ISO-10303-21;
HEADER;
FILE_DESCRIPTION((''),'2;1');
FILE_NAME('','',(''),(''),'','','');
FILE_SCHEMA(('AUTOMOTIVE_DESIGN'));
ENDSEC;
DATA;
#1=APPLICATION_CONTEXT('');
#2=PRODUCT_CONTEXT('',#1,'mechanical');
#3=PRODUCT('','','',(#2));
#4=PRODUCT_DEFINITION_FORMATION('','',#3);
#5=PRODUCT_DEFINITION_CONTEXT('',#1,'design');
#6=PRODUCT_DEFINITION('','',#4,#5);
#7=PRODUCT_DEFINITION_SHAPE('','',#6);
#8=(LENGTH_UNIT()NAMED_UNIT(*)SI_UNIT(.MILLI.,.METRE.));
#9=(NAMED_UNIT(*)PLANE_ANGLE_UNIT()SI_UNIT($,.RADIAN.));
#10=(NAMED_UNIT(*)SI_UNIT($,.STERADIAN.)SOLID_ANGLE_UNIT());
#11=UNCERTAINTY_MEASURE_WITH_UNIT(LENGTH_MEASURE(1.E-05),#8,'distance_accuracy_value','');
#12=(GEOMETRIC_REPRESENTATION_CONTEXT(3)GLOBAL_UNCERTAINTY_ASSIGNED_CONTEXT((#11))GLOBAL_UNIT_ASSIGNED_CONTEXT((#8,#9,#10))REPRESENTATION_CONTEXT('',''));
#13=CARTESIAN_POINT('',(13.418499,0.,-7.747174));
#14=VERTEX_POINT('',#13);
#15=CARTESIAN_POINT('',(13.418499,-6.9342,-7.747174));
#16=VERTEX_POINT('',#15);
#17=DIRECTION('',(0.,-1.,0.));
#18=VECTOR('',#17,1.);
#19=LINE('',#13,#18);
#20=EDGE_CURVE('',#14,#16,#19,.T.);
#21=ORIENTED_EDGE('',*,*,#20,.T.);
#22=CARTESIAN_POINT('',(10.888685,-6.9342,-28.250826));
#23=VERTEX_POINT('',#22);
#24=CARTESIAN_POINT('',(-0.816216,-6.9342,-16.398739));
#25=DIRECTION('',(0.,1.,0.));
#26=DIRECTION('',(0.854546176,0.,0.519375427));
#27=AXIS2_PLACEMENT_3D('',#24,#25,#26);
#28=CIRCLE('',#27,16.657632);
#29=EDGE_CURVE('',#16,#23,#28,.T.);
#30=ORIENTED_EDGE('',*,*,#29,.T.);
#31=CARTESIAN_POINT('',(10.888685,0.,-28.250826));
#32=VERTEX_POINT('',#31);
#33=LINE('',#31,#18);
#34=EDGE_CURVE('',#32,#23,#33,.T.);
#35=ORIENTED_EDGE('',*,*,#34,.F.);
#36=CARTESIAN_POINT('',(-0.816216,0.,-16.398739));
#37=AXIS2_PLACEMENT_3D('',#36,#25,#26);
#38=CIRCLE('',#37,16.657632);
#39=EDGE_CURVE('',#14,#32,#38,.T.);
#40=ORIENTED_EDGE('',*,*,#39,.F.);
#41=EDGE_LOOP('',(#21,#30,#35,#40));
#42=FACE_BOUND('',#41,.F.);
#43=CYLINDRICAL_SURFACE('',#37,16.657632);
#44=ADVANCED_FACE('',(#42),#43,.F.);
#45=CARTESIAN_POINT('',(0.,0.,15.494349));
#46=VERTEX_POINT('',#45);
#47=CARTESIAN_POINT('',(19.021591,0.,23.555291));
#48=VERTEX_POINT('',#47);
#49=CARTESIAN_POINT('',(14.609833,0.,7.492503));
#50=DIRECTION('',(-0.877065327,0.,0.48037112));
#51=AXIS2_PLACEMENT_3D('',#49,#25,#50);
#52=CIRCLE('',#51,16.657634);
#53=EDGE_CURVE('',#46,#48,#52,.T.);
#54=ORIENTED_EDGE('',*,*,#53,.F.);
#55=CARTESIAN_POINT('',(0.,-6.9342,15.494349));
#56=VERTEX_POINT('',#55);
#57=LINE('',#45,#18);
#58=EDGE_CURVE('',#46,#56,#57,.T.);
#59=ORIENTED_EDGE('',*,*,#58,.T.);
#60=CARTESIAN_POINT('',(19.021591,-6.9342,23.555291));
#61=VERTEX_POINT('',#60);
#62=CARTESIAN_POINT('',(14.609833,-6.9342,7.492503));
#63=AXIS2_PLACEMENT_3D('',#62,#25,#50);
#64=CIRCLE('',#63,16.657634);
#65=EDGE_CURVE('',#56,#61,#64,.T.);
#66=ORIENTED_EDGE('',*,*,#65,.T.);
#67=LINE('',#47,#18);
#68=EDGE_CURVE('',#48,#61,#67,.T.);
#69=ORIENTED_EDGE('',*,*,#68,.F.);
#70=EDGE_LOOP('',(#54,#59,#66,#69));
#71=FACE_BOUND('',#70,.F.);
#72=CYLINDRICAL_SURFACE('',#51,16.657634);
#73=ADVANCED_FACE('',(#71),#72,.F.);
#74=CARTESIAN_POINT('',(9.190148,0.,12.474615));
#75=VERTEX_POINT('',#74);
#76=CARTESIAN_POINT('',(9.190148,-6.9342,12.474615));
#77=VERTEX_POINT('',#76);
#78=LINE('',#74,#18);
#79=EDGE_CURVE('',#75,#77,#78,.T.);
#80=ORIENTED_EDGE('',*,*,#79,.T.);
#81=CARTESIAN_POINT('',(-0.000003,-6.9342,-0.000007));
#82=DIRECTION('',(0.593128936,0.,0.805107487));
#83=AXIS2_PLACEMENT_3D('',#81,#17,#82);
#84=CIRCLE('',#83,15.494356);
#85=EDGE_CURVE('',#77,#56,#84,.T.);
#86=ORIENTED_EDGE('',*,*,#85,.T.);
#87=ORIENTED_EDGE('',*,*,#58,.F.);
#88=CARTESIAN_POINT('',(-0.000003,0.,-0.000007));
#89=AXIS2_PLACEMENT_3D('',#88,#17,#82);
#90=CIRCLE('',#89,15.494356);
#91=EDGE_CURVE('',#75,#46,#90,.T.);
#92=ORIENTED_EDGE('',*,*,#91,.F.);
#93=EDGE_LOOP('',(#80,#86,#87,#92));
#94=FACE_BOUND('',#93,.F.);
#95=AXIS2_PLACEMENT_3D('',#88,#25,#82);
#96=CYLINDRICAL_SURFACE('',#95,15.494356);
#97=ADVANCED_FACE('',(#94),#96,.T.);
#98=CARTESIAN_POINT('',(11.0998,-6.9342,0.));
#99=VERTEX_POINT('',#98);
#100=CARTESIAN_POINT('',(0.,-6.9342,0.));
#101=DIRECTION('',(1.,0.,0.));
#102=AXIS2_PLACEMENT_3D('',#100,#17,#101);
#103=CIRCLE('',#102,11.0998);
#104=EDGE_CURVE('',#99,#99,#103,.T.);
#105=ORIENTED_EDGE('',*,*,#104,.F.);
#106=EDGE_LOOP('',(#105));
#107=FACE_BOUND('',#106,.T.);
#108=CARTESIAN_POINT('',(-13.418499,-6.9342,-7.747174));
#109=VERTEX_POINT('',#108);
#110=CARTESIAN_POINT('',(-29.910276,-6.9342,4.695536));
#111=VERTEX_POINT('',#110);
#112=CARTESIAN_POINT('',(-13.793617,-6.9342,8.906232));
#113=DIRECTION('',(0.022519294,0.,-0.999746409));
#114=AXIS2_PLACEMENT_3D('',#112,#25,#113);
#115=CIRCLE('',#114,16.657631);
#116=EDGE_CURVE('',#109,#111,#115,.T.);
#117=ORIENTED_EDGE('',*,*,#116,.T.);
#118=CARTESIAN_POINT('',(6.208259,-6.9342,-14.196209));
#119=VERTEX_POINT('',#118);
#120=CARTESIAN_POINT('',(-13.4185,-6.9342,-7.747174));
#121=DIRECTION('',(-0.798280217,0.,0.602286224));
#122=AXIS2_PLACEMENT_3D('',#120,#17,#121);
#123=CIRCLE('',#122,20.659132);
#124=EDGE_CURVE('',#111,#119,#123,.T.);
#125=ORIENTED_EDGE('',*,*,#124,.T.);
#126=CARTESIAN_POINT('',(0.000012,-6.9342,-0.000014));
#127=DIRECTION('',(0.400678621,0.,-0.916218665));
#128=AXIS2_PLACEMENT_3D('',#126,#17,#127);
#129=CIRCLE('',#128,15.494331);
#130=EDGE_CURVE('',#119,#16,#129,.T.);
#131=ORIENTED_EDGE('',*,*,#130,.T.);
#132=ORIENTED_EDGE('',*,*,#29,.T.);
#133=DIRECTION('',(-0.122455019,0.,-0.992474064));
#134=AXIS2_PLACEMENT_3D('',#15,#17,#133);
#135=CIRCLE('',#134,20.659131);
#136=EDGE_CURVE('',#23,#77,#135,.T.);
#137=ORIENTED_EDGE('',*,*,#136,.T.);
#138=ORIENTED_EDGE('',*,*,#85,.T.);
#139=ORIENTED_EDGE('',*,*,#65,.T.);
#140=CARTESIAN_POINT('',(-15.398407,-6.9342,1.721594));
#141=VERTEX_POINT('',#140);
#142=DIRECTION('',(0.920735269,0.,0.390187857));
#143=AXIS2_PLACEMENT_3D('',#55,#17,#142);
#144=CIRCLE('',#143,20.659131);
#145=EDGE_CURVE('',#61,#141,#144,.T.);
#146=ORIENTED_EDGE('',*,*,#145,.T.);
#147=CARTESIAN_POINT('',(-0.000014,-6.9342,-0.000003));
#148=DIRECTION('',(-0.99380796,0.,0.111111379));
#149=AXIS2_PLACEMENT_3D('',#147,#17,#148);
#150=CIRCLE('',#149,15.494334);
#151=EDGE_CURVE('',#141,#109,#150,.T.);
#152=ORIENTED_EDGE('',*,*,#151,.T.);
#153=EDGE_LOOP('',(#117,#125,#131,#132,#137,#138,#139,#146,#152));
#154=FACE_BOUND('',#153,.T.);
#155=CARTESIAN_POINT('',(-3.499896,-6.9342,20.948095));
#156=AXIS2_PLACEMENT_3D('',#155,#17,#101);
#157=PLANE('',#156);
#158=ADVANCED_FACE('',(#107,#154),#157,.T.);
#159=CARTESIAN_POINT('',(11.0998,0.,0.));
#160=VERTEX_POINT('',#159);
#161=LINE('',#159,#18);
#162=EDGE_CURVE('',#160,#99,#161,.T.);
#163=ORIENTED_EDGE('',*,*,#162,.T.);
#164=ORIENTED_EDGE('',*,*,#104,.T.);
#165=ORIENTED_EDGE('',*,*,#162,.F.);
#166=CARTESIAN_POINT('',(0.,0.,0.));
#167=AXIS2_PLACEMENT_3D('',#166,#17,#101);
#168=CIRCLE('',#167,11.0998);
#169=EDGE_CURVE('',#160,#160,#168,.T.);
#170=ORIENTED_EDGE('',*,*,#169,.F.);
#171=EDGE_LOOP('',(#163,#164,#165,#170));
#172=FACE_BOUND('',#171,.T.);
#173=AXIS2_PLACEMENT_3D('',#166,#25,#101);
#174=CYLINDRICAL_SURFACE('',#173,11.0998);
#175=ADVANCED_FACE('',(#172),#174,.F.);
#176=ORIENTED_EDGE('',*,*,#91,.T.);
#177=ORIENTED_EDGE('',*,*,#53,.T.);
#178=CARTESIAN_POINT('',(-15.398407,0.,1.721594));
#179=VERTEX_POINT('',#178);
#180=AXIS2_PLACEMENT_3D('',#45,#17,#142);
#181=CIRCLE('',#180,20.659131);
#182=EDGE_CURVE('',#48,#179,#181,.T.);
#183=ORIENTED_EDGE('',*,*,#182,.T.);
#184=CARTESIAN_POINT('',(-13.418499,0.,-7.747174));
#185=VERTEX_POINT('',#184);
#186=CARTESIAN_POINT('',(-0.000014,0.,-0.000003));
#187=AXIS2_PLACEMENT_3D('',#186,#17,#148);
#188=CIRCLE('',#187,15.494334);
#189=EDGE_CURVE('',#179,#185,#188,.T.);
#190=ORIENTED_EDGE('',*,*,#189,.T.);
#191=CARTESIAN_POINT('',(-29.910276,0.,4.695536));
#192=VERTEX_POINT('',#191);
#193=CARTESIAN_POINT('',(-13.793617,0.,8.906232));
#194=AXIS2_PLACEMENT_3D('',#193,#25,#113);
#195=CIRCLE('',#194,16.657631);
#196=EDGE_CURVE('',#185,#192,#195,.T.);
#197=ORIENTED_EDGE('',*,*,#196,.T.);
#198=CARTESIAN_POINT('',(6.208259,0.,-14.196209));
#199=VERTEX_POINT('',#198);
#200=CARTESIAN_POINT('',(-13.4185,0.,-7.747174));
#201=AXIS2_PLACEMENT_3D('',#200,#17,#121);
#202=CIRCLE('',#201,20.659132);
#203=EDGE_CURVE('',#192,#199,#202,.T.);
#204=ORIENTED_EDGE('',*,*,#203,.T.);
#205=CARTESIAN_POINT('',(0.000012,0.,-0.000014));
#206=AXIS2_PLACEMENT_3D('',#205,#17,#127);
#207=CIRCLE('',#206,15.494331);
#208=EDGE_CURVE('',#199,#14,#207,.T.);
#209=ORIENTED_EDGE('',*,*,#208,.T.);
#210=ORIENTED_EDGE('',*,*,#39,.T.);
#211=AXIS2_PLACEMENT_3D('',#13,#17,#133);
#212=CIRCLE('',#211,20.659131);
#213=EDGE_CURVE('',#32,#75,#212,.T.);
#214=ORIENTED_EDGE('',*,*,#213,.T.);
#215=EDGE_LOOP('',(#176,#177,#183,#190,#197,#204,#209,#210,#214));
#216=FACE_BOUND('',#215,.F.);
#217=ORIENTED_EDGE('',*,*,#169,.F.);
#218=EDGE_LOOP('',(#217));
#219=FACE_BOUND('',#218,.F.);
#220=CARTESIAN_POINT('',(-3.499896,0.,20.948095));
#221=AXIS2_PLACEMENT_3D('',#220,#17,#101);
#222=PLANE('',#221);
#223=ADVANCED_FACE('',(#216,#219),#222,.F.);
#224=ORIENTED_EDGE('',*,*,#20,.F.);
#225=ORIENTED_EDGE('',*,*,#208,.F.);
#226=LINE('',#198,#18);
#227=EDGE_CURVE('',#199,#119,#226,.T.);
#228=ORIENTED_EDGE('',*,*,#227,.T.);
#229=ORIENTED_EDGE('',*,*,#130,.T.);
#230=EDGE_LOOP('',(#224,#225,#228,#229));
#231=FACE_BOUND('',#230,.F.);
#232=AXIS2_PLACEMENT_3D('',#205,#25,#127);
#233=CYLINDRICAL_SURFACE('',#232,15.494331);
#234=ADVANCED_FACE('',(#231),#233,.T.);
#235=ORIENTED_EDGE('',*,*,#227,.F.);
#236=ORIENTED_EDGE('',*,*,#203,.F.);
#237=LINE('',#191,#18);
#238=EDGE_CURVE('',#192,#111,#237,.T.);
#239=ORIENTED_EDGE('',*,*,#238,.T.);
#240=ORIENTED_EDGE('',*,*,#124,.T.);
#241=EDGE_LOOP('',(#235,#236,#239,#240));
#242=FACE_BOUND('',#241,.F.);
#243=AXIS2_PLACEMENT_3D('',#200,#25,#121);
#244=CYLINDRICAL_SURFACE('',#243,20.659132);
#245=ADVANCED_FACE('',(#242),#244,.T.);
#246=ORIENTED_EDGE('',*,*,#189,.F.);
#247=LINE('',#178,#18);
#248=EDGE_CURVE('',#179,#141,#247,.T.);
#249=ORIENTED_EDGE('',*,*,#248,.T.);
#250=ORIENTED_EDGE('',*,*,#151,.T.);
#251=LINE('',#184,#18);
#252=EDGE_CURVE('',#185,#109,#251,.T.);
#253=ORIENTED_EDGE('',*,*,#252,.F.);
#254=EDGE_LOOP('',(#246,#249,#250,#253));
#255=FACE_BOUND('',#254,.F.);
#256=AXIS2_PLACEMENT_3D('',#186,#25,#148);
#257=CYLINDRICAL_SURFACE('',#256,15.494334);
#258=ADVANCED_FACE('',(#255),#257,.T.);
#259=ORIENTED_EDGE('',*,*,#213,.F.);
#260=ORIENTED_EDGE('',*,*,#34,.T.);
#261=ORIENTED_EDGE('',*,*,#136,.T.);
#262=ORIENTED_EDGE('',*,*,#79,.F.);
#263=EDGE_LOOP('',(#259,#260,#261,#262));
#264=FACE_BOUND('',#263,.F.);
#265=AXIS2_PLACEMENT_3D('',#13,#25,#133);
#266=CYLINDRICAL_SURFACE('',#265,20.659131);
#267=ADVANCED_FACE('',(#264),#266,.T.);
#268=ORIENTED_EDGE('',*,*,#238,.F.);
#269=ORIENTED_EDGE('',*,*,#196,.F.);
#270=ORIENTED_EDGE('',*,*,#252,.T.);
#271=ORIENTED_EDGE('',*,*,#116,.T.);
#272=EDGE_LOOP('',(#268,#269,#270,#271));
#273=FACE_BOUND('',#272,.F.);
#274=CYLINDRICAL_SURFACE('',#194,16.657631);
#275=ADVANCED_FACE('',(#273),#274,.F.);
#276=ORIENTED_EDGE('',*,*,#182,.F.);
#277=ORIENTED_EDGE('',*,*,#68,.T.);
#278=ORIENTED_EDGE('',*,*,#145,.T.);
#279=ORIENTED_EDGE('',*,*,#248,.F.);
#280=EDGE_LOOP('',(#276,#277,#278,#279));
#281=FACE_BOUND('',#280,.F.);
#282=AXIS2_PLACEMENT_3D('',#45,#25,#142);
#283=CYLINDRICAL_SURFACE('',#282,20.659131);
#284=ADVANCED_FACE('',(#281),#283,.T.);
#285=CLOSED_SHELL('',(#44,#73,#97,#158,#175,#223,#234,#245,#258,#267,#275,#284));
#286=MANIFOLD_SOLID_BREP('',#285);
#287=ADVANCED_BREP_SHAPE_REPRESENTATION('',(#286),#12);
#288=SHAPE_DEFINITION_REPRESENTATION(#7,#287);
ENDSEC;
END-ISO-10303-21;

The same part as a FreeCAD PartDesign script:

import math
import FreeCAD as App
import Part
import Sketcher
from FreeCAD import Vector
Q = App.Units.Quantity

doc = App.newDocument("Part")
body = doc.addObject("PartDesign::Body", "Body")

# Sketch on XZ plane
sketch1 = body.newObject("Sketcher::SketchObject", "Sketch")
sketch1.AttachmentSupport = (doc.getObject("XZ_Plane"), [""])
sketch1.MapMode = "FlatFace"
sketch1.addGeometry([
    Part.ArcOfCircle(Part.Circle(Vector(14.609833, 7.492503, 0), Vector(0, 0, 1), 16.657634), math.radians(74.64202), math.radians(151.290357)),  # 0
    Part.ArcOfCircle(Part.Circle(Vector(0, 15.494349, 0), Vector(0, 0, 1), 20.659131), math.radians(22.966189), math.radians(221.810317)),  # 1
    Part.ArcOfCircle(Part.Circle(Vector(-0.000014, -0.000003, 0), Vector(0, 0, 1), 15.494334), math.radians(173.620614), math.radians(210.000018)),  # 2
    Part.ArcOfCircle(Part.Circle(Vector(-13.793617, 8.906232, 0), Vector(0, 0, 1), 16.657631), math.radians(-165.35799), math.radians(-88.70963)),  # 3
    Part.ArcOfCircle(Part.Circle(Vector(-13.4185, -7.747174, 0), Vector(0, 0, 1), 20.659132), math.radians(142.966188), math.radians(341.810316)),  # 4
    Part.ArcOfCircle(Part.Circle(Vector(0.000012, -0.000014, 0), Vector(0, 0, 1), 15.494331), math.radians(-66.379391), math.radians(-29.999977)),  # 5
    Part.ArcOfCircle(Part.Circle(Vector(-0.816216, -16.398739, 0), Vector(0, 0, 1), 16.657632), math.radians(-45.357984), math.radians(31.290366)),  # 6
    Part.ArcOfCircle(Part.Circle(Vector(13.418499, -7.747174, 0), Vector(0, 0, 1), 20.659131), math.radians(-97.03381), math.radians(101.810315)),  # 7
    Part.ArcOfCircle(Part.Circle(Vector(-0.000003, -0.000007, 0), Vector(0, 0, 1), 15.494356), math.radians(53.620637), math.radians(89.999989)),  # 8
    Part.Circle(Vector(0, 0, 0), Vector(0, 0, 1), 11.0998),  # 9
], False)
sketch1.addConstraint([
    Sketcher.Constraint("Coincident", 0, 1, 1, 1),
    Sketcher.Constraint("Coincident", 1, 2, 2, 1),
    Sketcher.Constraint("Coincident", 2, 2, 3, 2),
    Sketcher.Constraint("Coincident", 3, 1, 4, 1),
    Sketcher.Constraint("Coincident", 4, 2, 5, 1),
    Sketcher.Constraint("Coincident", 5, 2, 6, 2),
    Sketcher.Constraint("Coincident", 6, 1, 7, 1),
    Sketcher.Constraint("Coincident", 7, 2, 8, 1),
    Sketcher.Constraint("Coincident", 8, 2, 0, 2),
    Sketcher.Constraint("Coincident", 8, 3, -1, 1),
    Sketcher.Constraint("Coincident", 9, 3, -1, 1),
    Sketcher.Constraint("Coincident", 2, 2, 4, 3),
    Sketcher.Constraint("Coincident", 5, 2, 7, 3),
    Sketcher.Constraint("Coincident", 8, 2, 1, 3),
    Sketcher.Constraint("Equal", 1, 4),
    Sketcher.Constraint("Equal", 3, 6),
    Sketcher.Constraint("Equal", 4, 7),
    Sketcher.Constraint("Symmetric", 4, 3, 7, 3, -2),
    Sketcher.Constraint("PointOnObject", 1, 3, -2),
    Sketcher.Constraint("Diameter", 9, Q("0.874 in")),
    Sketcher.Constraint("Radius", 1, 20.659131),
    Sketcher.Constraint("Radius", 3, 16.657631),
    Sketcher.Constraint("Radius", 5, 15.494331),
    Sketcher.Constraint("Radius", 0, 16.657634),
    Sketcher.Constraint("Radius", 2, 15.494334),
    Sketcher.Constraint("Radius", 8, 15.494356),
    Sketcher.Constraint("DistanceY", 6, 3, 0, 3, Q("0.9406 in")),
    Sketcher.Constraint("DistanceX", 4, 3, -1, 1, 13.4185),
    Sketcher.Constraint("DistanceX", 3, 3, 6, 3, 12.977401),
    Sketcher.Constraint("DistanceY", 8, 3, 0, 1, 23.555298),
    Sketcher.Constraint("DistanceY", 8, 3, 1, 2, 1.721601),
    Sketcher.Constraint("DistanceY", 4, 2, 8, 3, 14.196202),
    Sketcher.Constraint("DistanceX", 6, 3, 6, 1, 11.704901),
])
pad1 = body.newObject("PartDesign::Pad", "Pad")
pad1.Profile = sketch1
pad1.Length = Q("0.273 in")

doc.recompute()
